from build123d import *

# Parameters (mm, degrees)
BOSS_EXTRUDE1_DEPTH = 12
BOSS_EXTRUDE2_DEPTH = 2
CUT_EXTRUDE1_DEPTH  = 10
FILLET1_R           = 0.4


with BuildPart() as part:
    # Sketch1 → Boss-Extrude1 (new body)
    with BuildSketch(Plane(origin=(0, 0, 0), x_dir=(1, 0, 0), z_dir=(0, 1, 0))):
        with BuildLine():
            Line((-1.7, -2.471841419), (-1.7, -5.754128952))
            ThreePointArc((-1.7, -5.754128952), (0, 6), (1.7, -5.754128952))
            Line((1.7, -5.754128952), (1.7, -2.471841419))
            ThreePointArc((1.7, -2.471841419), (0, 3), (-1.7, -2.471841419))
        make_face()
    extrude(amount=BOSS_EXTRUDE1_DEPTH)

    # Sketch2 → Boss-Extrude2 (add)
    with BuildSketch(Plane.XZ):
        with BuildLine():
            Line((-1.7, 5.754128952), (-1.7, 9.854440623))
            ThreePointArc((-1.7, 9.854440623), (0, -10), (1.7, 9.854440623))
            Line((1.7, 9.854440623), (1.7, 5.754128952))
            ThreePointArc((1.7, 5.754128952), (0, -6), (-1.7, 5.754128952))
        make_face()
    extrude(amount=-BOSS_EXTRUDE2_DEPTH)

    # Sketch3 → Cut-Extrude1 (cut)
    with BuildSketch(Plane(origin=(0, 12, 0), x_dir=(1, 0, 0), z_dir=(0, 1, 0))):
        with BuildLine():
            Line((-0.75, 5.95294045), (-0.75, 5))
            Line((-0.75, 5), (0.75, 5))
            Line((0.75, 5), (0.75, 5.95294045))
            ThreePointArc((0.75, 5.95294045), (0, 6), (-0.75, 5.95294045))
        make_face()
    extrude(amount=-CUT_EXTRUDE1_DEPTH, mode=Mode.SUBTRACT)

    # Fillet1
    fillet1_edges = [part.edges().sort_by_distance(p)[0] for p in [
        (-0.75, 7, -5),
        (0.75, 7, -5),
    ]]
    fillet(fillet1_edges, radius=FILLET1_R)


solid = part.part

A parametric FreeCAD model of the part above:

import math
import FreeCAD as App
import Part
import Sketcher

V = App.Vector


def edges_at(feature, points):
    """Names of the edges that pass closest to the given points."""
    edges = feature.Shape.Edges
    near = lambda p: min(range(len(edges)), key=lambda i: edges[i].distToShape(Part.Vertex(*p))[0])
    return sorted({f"Edge{near(p) + 1}" for p in points})

doc = App.newDocument("Part")
body = doc.addObject("PartDesign::Body", "Body")

# Sketch on XZ plane
sketch1 = doc.addObject("Sketcher::SketchObject", "Sketch")
body.addObject(sketch1)
sketch1.AttachmentSupport = (doc.XZ_Plane, [""])
sketch1.MapMode = "FlatFace"
sketch1.addGeometry([
    Part.LineSegment(V(-1.7, 5.754129, 0), V(-1.7, 2.471841, 0)),
    Part.ArcOfCircle(Part.Circle(V(0, 0, 0), V(0, 0, 1), 3), math.radians(124.518108), math.radians(415.481892)),
    Part.LineSegment(V(1.7, 2.471841, 0), V(1.7, 5.754129, 0)),
    Part.ArcOfCircle(Part.Circle(V(0, 0, 0), V(0, 0, 1), 6), math.radians(106.45925), math.radians(433.54075)),
], False)
sketch1.addConstraint([
    Sketcher.Constraint("Coincident", 0, 2, 1, 1),
    Sketcher.Constraint("Coincident", 1, 2, 2, 1),
    Sketcher.Constraint("Coincident", 2, 2, 3, 2),
    Sketcher.Constraint("Coincident", 3, 1, 0, 1),
    Sketcher.Constraint("Vertical", 0),
    Sketcher.Constraint("Vertical", 2),
    Sketcher.Constraint("Coincident", 1, 3, -1, 1),
    Sketcher.Constraint("Coincident", 3, 3, -1, 1),
    Sketcher.Constraint("Horizontal", 0, 2, 1, 2),
    Sketcher.Constraint("Radius", 1, 3.0),
    Sketcher.Constraint("Radius", 3, 6.0),
    Sketcher.Constraint("DistanceX", 0, 2, -1, 1, 1.7),
])
pad1 = doc.addObject("PartDesign::Pad", "Pad")
body.addObject(pad1)
pad1.Profile = sketch1
pad1.Length = 12
pad1.Reversed = True

# Sketch on XZ plane
sketch2 = doc.addObject("Sketcher::SketchObject", "Sketch001")
body.addObject(sketch2)
sketch2.AttachmentSupport = (doc.XZ_Plane, [""])
sketch2.MapMode = "FlatFace"
sketch2.addGeometry([
    Part.LineSegment(V(-1.7, 5.754129, 0), V(-1.7, 9.854441, 0)),
    Part.ArcOfCircle(Part.Circle(V(0, 0, 0), V(0, 0, 1), 10), math.radians(99.787819), math.radians(440.212181)),
    Part.LineSegment(V(1.7, 9.854441, 0), V(1.7, 5.754129, 0)),
    Part.ArcOfCircle(Part.Circle(V(0, 0, 0), V(0, 0, 1), 6), math.radians(106.45925), math.radians(433.54075)),
], False)
sketch2.addConstraint([
    Sketcher.Constraint("Coincident", 0, 2, 1, 1),
    Sketcher.Constraint("Coincident", 1, 2, 2, 1),
    Sketcher.Constraint("Coincident", 2, 2, 3, 2),
    Sketcher.Constraint("Coincident", 3, 1, 0, 1),
    Sketcher.Constraint("Vertical", 0),
    Sketcher.Constraint("Vertical", 2),
    Sketcher.Constraint("Coincident", 1, 3, -1, 1),
    Sketcher.Constraint("Coincident", 3, 3, -1, 1),
    Sketcher.Constraint("Horizontal", 0, 2, 1, 2),
    Sketcher.Constraint("Radius", 1, 10.0),
    Sketcher.Constraint("Radius", 3, 6.0),
    Sketcher.Constraint("DistanceX", 0, 2, -1, 1, 1.7),
])
pad2 = doc.addObject("PartDesign::Pad", "Pad001")
body.addObject(pad2)
pad2.Profile = sketch2
pad2.Length = 2
pad2.Reversed = True

# Sketch on XZ plane
sketch3 = doc.addObject("Sketcher::SketchObject", "Sketch002")
body.addObject(sketch3)
sketch3.AttachmentSupport = (doc.XZ_Plane, [""])
sketch3.MapMode = "FlatFace"
sketch3.AttachmentOffset = App.Placement(V(0, 0, -12), App.Rotation())
sketch3.addGeometry([
    Part.LineSegment(V(-0.75, -5.95294, 0), V(-0.75, -5, 0)),
    Part.LineSegment(V(-0.75, -5, 0), V(0.75, -5, 0)),
    Part.LineSegment(V(0.75, -5, 0), V(0.75, -5.95294, 0)),
    Part.ArcOfCircle(Part.Circle(V(0, 0, 0), V(0, 0, 1), 6), math.radians(-97.180756), math.radians(-82.819244)),
], False)
sketch3.addConstraint([
    Sketcher.Constraint("Coincident", 0, 2, 1, 1),
    Sketcher.Constraint("Coincident", 1, 2, 2, 1),
    Sketcher.Constraint("Coincident", 2, 2, 3, 2),
    Sketcher.Constraint("Coincident", 3, 1, 0, 1),
    Sketcher.Constraint("Vertical", 0),
    Sketcher.Constraint("Horizontal", 1),
    Sketcher.Constraint("Vertical", 2),
    Sketcher.Constraint("Coincident", 3, 3, -1, 1),
    Sketcher.Constraint("Horizontal", 2, 2, 3, 1),
    Sketcher.Constraint("Radius", 3, 6.0),
    Sketcher.Constraint("DistanceX", 1, 1, 1, 2, 1.5),
    Sketcher.Constraint("DistanceY", 0, 2, -1, 1, 5.0),
])
pocket1 = doc.addObject("PartDesign::Pocket", "Pocket")
body.addObject(pocket1)
pocket1.Profile = sketch3
pocket1.Length = 10
pocket1.Reversed = True
doc.recompute()

fillet = doc.addObject("PartDesign::Fillet", "Fillet")
body.addObject(fillet)
fillet.Base = (pocket1, edges_at(pocket1, [(-0.75, 7, -5), (0.75, 7, -5)]))
fillet.Radius = 0.4

doc.recompute()
